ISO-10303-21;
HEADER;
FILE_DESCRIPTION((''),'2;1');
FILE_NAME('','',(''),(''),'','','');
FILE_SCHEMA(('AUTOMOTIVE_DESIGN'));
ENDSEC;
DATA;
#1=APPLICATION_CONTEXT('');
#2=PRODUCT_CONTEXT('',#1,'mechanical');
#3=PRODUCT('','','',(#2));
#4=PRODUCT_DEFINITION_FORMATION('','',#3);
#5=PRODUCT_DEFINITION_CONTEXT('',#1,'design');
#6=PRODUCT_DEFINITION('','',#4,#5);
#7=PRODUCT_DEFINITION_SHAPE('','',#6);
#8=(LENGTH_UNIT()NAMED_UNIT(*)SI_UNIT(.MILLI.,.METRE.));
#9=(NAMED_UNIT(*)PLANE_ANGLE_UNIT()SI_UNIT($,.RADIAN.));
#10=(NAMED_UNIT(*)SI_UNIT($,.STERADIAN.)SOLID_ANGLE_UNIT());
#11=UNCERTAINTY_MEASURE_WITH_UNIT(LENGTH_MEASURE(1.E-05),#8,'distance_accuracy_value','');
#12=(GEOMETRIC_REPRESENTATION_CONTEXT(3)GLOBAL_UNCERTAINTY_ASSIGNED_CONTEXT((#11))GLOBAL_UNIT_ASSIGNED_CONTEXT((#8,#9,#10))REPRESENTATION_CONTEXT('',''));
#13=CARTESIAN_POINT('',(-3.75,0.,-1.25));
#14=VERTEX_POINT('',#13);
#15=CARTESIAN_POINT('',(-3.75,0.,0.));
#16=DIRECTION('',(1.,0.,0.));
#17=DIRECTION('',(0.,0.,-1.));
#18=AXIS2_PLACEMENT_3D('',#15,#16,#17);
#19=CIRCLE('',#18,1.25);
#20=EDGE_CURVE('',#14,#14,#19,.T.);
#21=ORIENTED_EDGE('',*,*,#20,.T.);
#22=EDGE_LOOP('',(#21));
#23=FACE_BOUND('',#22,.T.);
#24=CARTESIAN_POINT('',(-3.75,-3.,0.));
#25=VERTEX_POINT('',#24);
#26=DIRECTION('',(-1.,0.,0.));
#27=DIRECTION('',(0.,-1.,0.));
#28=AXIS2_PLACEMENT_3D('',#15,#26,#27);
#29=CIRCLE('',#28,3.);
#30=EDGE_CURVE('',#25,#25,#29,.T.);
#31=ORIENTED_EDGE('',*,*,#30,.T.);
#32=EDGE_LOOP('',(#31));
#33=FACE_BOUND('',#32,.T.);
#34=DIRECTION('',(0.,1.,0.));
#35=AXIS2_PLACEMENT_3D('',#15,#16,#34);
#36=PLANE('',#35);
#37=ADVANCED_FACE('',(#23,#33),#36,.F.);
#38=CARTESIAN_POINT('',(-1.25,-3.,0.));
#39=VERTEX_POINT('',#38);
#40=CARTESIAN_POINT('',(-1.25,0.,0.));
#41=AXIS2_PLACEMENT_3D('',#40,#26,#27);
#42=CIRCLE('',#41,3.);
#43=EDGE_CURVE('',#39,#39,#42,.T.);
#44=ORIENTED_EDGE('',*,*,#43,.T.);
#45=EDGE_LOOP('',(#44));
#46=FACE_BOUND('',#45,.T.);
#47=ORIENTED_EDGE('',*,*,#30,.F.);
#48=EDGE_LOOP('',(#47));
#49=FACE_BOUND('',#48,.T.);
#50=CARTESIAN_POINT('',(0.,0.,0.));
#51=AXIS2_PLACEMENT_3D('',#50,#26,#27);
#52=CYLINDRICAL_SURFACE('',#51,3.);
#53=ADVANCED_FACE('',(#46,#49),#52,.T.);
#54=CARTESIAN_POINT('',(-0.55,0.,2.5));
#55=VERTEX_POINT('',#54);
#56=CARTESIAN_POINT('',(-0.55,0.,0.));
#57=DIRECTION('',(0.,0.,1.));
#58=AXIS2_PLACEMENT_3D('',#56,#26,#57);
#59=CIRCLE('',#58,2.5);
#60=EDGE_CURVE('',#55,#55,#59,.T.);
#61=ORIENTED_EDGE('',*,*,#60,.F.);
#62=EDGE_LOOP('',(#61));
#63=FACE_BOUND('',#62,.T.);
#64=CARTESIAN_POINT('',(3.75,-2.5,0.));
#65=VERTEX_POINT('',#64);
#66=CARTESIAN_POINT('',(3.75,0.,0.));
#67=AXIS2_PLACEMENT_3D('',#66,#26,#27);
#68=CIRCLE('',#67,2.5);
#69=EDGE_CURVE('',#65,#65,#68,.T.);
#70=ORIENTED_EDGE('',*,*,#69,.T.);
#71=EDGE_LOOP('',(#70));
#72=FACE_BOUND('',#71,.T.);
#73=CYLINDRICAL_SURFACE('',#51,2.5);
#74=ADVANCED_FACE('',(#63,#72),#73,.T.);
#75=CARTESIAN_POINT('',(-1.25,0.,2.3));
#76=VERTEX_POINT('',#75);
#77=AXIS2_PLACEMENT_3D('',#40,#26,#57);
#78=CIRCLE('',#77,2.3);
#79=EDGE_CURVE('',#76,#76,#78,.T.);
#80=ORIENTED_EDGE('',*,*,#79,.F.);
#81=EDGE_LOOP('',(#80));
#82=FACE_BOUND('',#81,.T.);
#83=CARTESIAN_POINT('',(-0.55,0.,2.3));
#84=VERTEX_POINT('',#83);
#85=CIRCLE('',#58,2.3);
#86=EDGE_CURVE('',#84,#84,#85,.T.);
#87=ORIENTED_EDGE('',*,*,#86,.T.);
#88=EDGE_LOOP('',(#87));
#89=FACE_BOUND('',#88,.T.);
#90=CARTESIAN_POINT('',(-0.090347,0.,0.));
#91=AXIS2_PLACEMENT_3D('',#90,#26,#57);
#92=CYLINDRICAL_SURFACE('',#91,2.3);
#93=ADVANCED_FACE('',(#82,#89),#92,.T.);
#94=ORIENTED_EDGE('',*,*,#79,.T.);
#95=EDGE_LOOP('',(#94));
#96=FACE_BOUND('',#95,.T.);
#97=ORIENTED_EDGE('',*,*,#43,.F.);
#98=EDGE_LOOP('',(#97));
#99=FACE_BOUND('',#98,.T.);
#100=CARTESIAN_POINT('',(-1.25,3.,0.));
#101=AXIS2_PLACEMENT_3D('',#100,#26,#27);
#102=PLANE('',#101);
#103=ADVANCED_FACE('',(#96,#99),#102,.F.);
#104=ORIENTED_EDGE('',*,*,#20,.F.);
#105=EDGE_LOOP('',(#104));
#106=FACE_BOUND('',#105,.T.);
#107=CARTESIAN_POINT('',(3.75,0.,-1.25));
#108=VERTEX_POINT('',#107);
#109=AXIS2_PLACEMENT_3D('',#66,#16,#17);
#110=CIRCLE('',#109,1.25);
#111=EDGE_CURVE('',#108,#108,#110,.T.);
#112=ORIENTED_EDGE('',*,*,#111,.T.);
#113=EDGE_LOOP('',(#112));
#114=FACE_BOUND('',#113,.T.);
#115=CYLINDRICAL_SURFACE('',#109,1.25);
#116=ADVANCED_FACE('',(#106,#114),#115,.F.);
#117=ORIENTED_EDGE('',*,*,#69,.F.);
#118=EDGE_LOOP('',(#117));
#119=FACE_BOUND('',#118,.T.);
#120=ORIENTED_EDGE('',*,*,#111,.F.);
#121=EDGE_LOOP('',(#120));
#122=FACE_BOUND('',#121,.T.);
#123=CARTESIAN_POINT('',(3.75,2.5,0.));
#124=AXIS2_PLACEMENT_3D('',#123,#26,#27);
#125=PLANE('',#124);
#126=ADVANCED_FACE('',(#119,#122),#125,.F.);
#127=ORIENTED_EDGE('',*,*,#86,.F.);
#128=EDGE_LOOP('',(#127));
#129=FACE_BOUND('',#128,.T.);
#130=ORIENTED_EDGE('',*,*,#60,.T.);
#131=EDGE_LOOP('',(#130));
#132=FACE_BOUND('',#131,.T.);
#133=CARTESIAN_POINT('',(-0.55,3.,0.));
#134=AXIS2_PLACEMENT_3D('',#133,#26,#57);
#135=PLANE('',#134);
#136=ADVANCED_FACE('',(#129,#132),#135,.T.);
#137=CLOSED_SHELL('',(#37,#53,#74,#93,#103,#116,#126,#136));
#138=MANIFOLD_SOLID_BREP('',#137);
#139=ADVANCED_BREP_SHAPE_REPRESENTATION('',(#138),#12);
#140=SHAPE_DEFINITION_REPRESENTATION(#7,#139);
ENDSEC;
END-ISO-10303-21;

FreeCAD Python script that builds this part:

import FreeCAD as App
import Part
import Sketcher
Q = App.Units.Quantity

doc = App.newDocument("Part")
params = doc.addObject("Spreadsheet::Sheet", "Params")
for row, (alias, value) in enumerate([
    ("sketch1_width", "5 mm"),
    ("sketch1_height", "3 mm"),
    ("sketch1_width2", "7.5 mm"),
    ("revolution_angle", "360 deg"),
    ("sketch2_diameter", "2.5 mm"),
    ("hole_diameter", "2.5 mm"),
    ("sketch3_width", "0.7 mm"),
    ("groove_angle", "360 deg"),
], start=1):
    params.set(f"A{row}", alias)
    params.set(f"B{row}", "=" + value)
    params.setAlias(f"B{row}", alias)

body = doc.addObject("PartDesign::Body", "Body")

# Sketch on XY plane
sketch1 = body.newObject("Sketcher::SketchObject", "Sketch")
sketch1.AttachmentSupport = (doc.getObject("XY_Plane"), [""])
sketch1.MapMode = "FlatFace"
sketch1.addGeometry([
    Part.LineSegment(App.Vector(-3.8, 3, 0), App.Vector(-3.8, 0, 0)),  # 0
    Part.LineSegment(App.Vector(-3.8, 0, 0), App.Vector(3.8, 0, 0)),  # 1
    Part.LineSegment(App.Vector(3.8, 0, 0), App.Vector(3.8, 2.5, 0)),  # 2
    Part.LineSegment(App.Vector(3.8, 2.5, 0), App.Vector(-1.2, 2.5, 0)),  # 3
    Part.LineSegment(App.Vector(-1.2, 2.5, 0), App.Vector(-1.2, 3, 0)),  # 4
    Part.LineSegment(App.Vector(-1.2, 3, 0), App.Vector(-3.8, 3, 0)),  # 5
], False)
sketch1.addConstraint([
    Sketcher.Constraint("Coincident", 0, 2, 1, 1),
    Sketcher.Constraint("Coincident", 1, 2, 2, 1),
    Sketcher.Constraint("Coincident", 2, 2, 3, 1),
    Sketcher.Constraint("Coincident", 3, 2, 4, 1),
    Sketcher.Constraint("Coincident", 4, 2, 5, 1),
    Sketcher.Constraint("Coincident", 5, 2, 0, 1),
    Sketcher.Constraint("Vertical", 0),
    Sketcher.Constraint("Horizontal", 1),
    Sketcher.Constraint("Vertical", 2),
    Sketcher.Constraint("Horizontal", 3),
    Sketcher.Constraint("Vertical", 4),
    Sketcher.Constraint("Horizontal", 5),
    Sketcher.Constraint("Symmetric", 0, 2, 1, 2, -1, 1),
    Sketcher.Constraint("Equal", 5, 2),
    Sketcher.Constraint("DistanceX", 3, 2, 3, 1, Q("5 mm")),
    Sketcher.Constraint("DistanceY", 0, 2, 0, 1, Q("3 mm")),
    Sketcher.Constraint("DistanceX", 1, 1, 1, 2, Q("7.5 mm")),
])
sketch1.setExpression("Constraints[14]", "Params.sketch1_width")
sketch1.setExpression("Constraints[15]", "Params.sketch1_height")
sketch1.setExpression("Constraints[16]", "Params.sketch1_width2")
revolution = body.newObject("PartDesign::Revolution", "Revolution")
revolution.Profile = sketch1
revolution.ReferenceAxis = (sketch1, ["H_Axis"])
revolution.setExpression("Angle", "Params.revolution_angle")

# Sketch on YZ plane
sketch2 = body.newObject("Sketcher::SketchObject", "Sketch001")
sketch2.AttachmentSupport = (doc.getObject("YZ_Plane"), [""])
sketch2.MapMode = "FlatFace"
sketch2.AttachmentOffset = App.Placement(App.Vector(0, 0, 3.75), App.Rotation())
sketch2.addGeometry(Part.Circle(App.Vector(0, 0, 0), App.Vector(0, 0, 1), 1.2), False)
sketch2.addConstraint([
    Sketcher.Constraint("Coincident", 0, 3, -1, 1),
    Sketcher.Constraint("Diameter", 0, Q("2.5 mm")),
])
sketch2.setExpression("Constraints[1]", "Params.sketch2_diameter")
doc.recompute()
hole = body.newObject("PartDesign::Hole", "Hole")
hole.Profile = sketch2
hole.ThreadType = "None"
hole.setExpression("Diameter", "Params.hole_diameter")
hole.DepthType = "ThroughAll"

# Sketch on XY plane
sketch3 = body.newObject("Sketcher::SketchObject", "Sketch002")
sketch3.AttachmentSupport = (doc.getObject("XY_Plane"), [""])
sketch3.MapMode = "FlatFace"
sketch3.addGeometry([
    Part.LineSegment(App.Vector(-1.2, 3, 0), App.Vector(-1.2, 2.3, 0)),
    Part.LineSegment(App.Vector(-1.2, 2.3, 0), App.Vector(-0.6, 2.3, 0)),
    Part.LineSegment(App.Vector(-0.6, 2.3, 0), App.Vector(-0.6, 3, 0)),
    Part.LineSegment(App.Vector(-0.6, 3, 0), App.Vector(-1.2, 3, 0)),
], False)
sketch3.addConstraint([
    Sketcher.Constraint("Coincident", 0, 2, 1, 1),
    Sketcher.Constraint("Coincident", 1, 2, 2, 1),
    Sketcher.Constraint("Coincident", 2, 2, 3, 1),
    Sketcher.Constraint("Coincident", 3, 2, 0, 1),
    Sketcher.Constraint("Vertical", 0),
    Sketcher.Constraint("Horizontal", 1),
    Sketcher.Constraint("Vertical", 2),
    Sketcher.Constraint("Horizontal", 3),
    Sketcher.Constraint("Equal", 3, 0),
    Sketcher.Constraint("DistanceX", 1, 1, 1, 2, Q("0.7 mm")),
    Sketcher.Constraint("DistanceY", -1, 1, 2, 2, Q("3 mm")),
    Sketcher.Constraint("DistanceX", 0, 2, -1, 1, Q("1.25 mm")),
])
sketch3.setExpression("Constraints[9]", "Params.sketch3_width")
groove = body.newObject("PartDesign::Groove", "Groove")
groove.Profile = sketch3
groove.ReferenceAxis = (sketch3, ["H_Axis"])
groove.setExpression("Angle", "Params.groove_angle")

doc.recompute()
